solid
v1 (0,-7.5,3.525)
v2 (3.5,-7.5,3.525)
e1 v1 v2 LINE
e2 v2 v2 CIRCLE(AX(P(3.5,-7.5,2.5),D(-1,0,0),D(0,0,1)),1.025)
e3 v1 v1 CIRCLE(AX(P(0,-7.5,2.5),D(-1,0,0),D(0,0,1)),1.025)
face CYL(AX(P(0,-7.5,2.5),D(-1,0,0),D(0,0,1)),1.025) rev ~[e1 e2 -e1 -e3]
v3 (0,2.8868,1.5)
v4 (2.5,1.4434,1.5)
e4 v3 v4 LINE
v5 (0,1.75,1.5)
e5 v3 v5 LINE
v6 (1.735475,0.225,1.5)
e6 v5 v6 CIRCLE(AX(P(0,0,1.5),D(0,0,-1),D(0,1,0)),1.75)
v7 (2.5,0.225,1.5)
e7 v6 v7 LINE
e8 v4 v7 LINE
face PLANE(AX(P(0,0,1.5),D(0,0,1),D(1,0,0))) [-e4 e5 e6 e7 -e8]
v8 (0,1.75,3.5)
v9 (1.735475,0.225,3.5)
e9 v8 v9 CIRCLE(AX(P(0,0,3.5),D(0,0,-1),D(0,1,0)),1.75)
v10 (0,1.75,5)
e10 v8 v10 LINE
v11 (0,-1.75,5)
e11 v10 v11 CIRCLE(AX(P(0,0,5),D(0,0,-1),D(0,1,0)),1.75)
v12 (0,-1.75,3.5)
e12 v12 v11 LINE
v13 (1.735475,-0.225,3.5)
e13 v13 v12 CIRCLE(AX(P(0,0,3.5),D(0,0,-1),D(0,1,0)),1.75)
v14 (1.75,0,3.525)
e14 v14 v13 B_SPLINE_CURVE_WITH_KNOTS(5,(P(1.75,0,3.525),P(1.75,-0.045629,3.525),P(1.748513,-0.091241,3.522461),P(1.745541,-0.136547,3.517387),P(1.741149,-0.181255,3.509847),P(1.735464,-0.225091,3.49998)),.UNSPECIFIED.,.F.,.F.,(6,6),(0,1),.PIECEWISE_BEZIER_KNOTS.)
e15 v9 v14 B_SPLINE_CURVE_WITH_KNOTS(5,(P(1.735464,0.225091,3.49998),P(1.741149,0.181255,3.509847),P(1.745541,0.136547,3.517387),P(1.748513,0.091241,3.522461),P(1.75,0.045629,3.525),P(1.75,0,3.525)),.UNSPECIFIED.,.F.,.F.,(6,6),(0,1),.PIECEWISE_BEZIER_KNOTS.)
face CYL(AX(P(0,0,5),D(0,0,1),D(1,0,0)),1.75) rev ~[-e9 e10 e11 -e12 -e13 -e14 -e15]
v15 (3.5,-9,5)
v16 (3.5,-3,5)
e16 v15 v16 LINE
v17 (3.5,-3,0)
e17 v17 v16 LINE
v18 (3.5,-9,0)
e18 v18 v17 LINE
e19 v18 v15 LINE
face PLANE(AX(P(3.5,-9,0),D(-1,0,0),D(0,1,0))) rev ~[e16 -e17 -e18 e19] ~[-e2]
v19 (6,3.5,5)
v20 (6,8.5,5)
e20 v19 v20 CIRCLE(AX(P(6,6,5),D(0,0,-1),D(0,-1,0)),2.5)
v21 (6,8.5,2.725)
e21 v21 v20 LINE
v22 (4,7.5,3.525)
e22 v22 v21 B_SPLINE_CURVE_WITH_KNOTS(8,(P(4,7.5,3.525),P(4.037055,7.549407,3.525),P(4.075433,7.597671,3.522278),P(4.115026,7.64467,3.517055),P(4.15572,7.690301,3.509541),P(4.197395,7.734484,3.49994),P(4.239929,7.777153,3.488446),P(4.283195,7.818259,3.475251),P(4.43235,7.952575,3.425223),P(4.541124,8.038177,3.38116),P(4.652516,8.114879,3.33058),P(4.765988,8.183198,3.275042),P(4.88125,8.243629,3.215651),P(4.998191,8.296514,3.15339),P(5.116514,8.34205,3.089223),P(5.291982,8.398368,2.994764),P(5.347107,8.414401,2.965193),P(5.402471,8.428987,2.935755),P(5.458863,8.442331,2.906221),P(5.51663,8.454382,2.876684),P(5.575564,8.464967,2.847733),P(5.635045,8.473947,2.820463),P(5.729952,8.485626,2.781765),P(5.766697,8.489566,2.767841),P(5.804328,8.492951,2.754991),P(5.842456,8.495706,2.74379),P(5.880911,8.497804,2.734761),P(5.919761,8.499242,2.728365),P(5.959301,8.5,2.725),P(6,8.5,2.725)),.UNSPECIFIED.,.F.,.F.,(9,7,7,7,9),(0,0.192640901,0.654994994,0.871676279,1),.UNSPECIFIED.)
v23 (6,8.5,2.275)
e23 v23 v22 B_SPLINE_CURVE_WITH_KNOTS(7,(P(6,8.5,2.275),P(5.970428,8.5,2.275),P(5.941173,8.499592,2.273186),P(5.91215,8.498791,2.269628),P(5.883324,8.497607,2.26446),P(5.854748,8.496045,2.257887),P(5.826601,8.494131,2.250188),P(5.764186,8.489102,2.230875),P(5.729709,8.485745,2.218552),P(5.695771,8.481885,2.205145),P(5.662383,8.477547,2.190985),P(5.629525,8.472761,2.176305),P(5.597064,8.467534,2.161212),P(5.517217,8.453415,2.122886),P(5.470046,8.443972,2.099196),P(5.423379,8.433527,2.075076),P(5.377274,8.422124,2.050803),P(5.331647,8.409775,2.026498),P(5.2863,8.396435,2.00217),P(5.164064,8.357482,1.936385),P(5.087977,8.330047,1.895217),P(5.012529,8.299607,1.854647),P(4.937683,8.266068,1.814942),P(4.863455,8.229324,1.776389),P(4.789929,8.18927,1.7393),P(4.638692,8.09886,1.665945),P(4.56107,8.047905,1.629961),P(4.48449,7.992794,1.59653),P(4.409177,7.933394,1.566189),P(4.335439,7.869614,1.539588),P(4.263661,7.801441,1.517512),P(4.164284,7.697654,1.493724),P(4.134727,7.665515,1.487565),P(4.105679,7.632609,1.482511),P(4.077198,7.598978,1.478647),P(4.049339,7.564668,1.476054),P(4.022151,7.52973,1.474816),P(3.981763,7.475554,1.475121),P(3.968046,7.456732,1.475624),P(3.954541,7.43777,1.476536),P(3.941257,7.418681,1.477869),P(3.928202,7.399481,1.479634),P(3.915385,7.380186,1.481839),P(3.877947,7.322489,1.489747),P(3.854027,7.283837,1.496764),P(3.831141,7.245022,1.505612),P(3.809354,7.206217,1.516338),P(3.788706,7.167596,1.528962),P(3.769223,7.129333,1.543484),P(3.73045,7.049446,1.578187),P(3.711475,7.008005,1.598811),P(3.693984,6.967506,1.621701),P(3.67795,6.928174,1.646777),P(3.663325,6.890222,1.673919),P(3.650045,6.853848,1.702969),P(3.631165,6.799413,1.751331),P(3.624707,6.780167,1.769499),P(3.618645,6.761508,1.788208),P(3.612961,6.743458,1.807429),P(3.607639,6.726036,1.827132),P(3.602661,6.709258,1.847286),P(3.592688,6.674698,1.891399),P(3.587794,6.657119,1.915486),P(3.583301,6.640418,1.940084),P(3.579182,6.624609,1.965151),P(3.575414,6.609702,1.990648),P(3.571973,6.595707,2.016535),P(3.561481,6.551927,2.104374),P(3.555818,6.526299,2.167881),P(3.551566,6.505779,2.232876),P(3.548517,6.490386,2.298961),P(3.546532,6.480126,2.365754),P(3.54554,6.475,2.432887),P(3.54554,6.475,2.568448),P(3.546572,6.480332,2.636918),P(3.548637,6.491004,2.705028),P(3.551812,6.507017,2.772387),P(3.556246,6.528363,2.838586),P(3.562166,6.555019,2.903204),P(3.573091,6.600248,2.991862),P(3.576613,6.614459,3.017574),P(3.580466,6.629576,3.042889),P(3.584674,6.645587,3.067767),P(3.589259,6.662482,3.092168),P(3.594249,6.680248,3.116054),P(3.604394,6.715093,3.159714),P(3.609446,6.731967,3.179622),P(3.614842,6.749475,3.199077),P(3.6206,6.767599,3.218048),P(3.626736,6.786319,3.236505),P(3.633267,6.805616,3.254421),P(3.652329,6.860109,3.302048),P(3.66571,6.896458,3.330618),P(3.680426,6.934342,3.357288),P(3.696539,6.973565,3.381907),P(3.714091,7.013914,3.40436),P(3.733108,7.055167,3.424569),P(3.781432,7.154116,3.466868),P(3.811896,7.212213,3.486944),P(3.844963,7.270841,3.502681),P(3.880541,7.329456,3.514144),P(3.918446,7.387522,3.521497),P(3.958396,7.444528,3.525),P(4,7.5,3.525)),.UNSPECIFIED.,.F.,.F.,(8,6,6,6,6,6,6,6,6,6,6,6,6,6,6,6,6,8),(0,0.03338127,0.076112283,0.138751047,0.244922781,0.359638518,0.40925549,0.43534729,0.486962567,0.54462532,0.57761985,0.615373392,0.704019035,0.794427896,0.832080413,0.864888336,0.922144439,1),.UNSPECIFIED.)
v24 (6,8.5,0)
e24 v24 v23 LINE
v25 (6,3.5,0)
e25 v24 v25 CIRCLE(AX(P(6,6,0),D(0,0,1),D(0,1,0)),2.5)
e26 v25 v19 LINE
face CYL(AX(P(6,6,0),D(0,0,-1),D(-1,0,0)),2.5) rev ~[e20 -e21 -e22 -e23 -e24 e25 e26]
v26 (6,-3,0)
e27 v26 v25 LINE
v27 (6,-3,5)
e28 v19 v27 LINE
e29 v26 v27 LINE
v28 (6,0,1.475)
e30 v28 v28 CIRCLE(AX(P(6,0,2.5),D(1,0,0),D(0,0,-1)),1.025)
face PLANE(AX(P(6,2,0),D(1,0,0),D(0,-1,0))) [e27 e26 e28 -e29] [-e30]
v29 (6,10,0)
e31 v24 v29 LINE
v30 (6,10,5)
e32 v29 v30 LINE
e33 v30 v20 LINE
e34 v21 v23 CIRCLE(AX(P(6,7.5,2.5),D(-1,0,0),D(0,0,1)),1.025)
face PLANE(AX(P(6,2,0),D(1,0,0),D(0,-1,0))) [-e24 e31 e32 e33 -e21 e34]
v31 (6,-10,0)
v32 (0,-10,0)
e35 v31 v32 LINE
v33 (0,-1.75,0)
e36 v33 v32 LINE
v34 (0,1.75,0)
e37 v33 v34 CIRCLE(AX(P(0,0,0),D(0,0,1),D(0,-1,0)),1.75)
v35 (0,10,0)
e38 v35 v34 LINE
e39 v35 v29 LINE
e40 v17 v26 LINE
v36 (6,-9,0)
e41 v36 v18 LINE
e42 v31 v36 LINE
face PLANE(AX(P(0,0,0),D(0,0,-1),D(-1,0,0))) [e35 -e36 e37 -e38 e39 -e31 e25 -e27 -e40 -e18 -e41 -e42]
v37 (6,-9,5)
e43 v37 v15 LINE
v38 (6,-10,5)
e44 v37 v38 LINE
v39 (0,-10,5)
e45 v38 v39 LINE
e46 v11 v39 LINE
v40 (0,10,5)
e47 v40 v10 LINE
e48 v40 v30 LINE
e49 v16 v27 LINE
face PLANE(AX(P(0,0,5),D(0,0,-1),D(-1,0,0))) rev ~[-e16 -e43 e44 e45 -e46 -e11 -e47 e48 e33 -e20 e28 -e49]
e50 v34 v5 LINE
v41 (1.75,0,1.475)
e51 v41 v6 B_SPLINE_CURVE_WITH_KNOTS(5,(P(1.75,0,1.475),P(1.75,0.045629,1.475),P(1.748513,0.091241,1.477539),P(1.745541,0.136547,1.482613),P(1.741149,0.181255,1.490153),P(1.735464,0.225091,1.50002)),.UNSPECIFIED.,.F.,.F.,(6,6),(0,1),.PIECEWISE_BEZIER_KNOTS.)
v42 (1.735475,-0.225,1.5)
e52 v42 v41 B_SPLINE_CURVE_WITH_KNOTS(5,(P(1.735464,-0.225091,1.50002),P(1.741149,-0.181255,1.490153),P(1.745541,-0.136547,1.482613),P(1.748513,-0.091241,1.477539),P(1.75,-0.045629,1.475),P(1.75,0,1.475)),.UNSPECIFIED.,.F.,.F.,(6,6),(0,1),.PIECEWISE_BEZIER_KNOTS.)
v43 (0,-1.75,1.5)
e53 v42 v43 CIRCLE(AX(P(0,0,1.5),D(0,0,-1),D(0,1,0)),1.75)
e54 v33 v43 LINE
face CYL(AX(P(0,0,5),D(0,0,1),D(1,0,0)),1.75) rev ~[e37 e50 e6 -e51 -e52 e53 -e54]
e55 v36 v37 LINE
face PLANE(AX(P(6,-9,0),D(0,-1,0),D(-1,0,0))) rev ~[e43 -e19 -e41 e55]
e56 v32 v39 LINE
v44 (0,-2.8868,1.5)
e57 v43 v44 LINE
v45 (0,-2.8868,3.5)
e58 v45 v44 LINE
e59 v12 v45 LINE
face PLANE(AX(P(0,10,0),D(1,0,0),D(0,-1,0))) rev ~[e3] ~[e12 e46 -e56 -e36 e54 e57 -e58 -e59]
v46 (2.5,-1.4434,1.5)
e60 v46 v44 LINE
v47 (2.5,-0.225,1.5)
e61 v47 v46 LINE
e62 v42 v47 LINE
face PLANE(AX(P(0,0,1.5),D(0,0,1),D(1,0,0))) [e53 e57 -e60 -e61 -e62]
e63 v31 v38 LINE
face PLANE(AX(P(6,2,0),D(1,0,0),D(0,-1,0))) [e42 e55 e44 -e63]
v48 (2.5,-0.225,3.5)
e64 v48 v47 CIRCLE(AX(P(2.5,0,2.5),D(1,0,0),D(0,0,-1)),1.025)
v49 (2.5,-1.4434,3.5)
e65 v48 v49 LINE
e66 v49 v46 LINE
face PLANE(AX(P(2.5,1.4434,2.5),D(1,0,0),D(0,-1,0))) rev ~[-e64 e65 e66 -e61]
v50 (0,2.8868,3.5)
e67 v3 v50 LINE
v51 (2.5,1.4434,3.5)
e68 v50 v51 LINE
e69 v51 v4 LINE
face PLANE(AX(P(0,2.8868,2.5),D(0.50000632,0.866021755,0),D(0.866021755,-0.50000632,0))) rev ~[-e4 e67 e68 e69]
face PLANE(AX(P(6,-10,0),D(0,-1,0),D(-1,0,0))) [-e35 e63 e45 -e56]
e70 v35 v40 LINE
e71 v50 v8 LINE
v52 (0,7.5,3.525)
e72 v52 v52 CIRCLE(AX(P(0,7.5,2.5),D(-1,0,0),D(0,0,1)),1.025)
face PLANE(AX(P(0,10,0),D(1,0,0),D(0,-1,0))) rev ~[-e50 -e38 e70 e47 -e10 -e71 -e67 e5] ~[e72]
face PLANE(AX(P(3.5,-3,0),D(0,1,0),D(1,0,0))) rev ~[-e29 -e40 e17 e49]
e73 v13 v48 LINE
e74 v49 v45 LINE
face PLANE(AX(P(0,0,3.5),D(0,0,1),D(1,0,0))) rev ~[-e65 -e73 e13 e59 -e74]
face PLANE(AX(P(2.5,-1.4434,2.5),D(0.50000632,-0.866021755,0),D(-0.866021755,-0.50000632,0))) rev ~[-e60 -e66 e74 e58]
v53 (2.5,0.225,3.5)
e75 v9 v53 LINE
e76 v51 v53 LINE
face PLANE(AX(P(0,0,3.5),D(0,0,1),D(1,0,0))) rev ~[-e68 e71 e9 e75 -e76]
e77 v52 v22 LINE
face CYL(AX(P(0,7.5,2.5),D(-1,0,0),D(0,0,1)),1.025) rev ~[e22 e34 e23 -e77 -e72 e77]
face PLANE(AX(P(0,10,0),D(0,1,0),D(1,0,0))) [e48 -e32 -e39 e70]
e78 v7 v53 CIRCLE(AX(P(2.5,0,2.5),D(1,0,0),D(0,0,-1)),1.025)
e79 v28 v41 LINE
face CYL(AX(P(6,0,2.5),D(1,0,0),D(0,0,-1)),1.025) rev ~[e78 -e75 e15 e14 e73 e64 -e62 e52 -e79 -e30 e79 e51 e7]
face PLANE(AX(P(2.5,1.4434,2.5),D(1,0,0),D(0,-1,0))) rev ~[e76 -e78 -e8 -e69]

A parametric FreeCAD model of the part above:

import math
import FreeCAD as App
import Part
import Sketcher

V = App.Vector
Q = App.Units.Quantity


def add_polygon(sketch, points):
    """Adds a closed chain of lines whose ends are joined by coincident constraints."""
    first, n = sketch.GeometryCount, len(points)
    for a, b in zip(points, points[1:] + points[:1]):
        sketch.addGeometry(Part.LineSegment(App.Vector(*a, 0), App.Vector(*b, 0)), False)
    for i in range(n):
        sketch.addConstraint(Sketcher.Constraint("Coincident", first + i, 2, first + (i + 1) % n, 1))

doc = App.newDocument("Part")
body = doc.addObject("PartDesign::Body", "Body")

# Sketch on XY plane
sketch1 = body.newObject("Sketcher::SketchObject", "Sketch")
sketch1.AttachmentSupport = (doc.getObject("XY_Plane"), [""])
sketch1.MapMode = "FlatFace"
add_polygon(sketch1, [(0, -10), (6, -10), (6, -2), (4, -2), (4, 2), (6, 2), (6, 10), (0, 10)])  # lines 0-7
sketch1.addConstraint(Sketcher.Constraint("Horizontal", 0))
sketch1.addConstraint(Sketcher.Constraint("Vertical", 1))
sketch1.addConstraint(Sketcher.Constraint("Horizontal", 2))
sketch1.addConstraint(Sketcher.Constraint("Vertical", 3))
sketch1.addConstraint(Sketcher.Constraint("Horizontal", 4))
sketch1.addConstraint(Sketcher.Constraint("Vertical", 5))
sketch1.addConstraint(Sketcher.Constraint("Horizontal", 6))
sketch1.addConstraint(Sketcher.Constraint("Vertical", 7))
sketch1.addConstraint(Sketcher.Constraint("Symmetric", 6, 2, 7, 2, -1, 1))
sketch1.addConstraint(Sketcher.Constraint("Symmetric", 1, 2, 4, 2, -1))
sketch1.addConstraint(Sketcher.Constraint("DistanceX", 0, 1, 0, 2, Q("6 mm")))
sketch1.addConstraint(Sketcher.Constraint("DistanceX", 2, 2, 2, 1, Q("2 mm")))
sketch1.addConstraint(Sketcher.Constraint("DistanceY", 3, 1, 3, 2, Q("4 mm")))
sketch1.addConstraint(Sketcher.Constraint("DistanceY", 7, 2, 7, 1, Q("20 mm")))
pad1 = body.newObject("PartDesign::Pad", "Pad")
pad1.Profile = sketch1
pad1.Length = 5

# Sketch on XY plane
sketch2 = body.newObject("Sketcher::SketchObject", "Sketch001")
sketch2.AttachmentSupport = (doc.getObject("XY_Plane"), [""])
sketch2.MapMode = "FlatFace"
sketch2.AttachmentOffset = App.Placement(V(0, 0, 2.5), App.Rotation())
add_polygon(sketch2, [(2.5, 1.4), (0, 2.9), (-2.5, 1.4), (-2.5, -1.4), (0, -2.9), (2.5, -1.4)])  # lines 0-5
sketch2.addConstraint(Sketcher.Constraint("Vertical", 2))
sketch2.addConstraint(Sketcher.Constraint("Vertical", 5))
sketch2.addConstraint(Sketcher.Constraint("Symmetric", 0, 2, 3, 2, -1, 1))
sketch2.addConstraint(Sketcher.Constraint("Symmetric", 1, 2, 4, 2, -1, 1))
sketch2.addConstraint(Sketcher.Constraint("PointOnObject", 0, 2, -2))
sketch2.addConstraint(Sketcher.Constraint("Parallel", 0, 3))
sketch2.addConstraint(Sketcher.Constraint("Horizontal", 2, 2, 4, 2))
sketch2.addConstraint(Sketcher.Constraint("DistanceX", 2, 2, 4, 2, Q("5 mm")))
sketch2.addConstraint(Sketcher.Constraint("Angle", 0, Q("149.9996 deg")))
sketch2.addConstraint(Sketcher.Constraint("DistanceY", 2, 2, 2, 1, Q("2.8868 mm")))
pocket1 = body.newObject("PartDesign::Pocket", "Pocket")
pocket1.Profile = sketch2
pocket1.Length = 2
pocket1.Midplane = True

# Sketch on XY plane
sketch3 = body.newObject("Sketcher::SketchObject", "Sketch002")
sketch3.AttachmentSupport = (doc.getObject("XY_Plane"), [""])
sketch3.MapMode = "FlatFace"
sketch3.AttachmentOffset = App.Placement(V(0, 0, 5), App.Rotation())
sketch3.addGeometry(Part.Circle(V(0, 0, 0), V(0, 0, 1), 1.8), False)
sketch3.addConstraint(Sketcher.Constraint("Coincident", 0, 3, -1, 1))
sketch3.addConstraint(Sketcher.Constraint("Diameter", 0, Q("3.5 mm")))
pocket2 = body.newObject("PartDesign::Pocket", "Pocket001")
pocket2.Profile = sketch3
pocket2.Length = 8

# Sketch on YZ plane
sketch4 = body.newObject("Sketcher::SketchObject", "Sketch003")
sketch4.AttachmentSupport = (doc.getObject("YZ_Plane"), [""])
sketch4.MapMode = "FlatFace"
sketch4.addGeometry(Part.Circle(V(7.5, 2.5, 0), V(0, 0, 1), 1), False)
sketch4.addGeometry(Part.Circle(V(-7.5, 2.5, 0), V(0, 0, 1), 1), False)
sketch4.addConstraint(Sketcher.Constraint("Equal", 0, 1))
sketch4.addConstraint(Sketcher.Constraint("Symmetric", 0, 3, 1, 3, -2))
sketch4.addConstraint(Sketcher.Constraint("Diameter", 0, Q("2.05 mm")))
sketch4.addConstraint(Sketcher.Constraint("DistanceY", -1, 1, 0, 3, Q("2.5 mm")))
sketch4.addConstraint(Sketcher.Constraint("DistanceX", 1, 3, 0, 3, Q("15 mm")))
pocket3 = body.newObject("PartDesign::Pocket", "Pocket002")
pocket3.Profile = sketch4
pocket3.Length = 25
pocket3.Reversed = True

# Sketch on XY plane
sketch5 = body.newObject("Sketcher::SketchObject", "Sketch004")
sketch5.AttachmentSupport = (doc.getObject("XY_Plane"), [""])
sketch5.MapMode = "FlatFace"
add_polygon(sketch5, [(6, -2), (4, -2), (4, 2), (6, 2)])  # lines 0-3
sketch5.addConstraint(Sketcher.Constraint("Horizontal", 0))
sketch5.addConstraint(Sketcher.Constraint("Vertical", 1))
sketch5.addConstraint(Sketcher.Constraint("Horizontal", 2))
sketch5.addConstraint(Sketcher.Constraint("Vertical", 3))
sketch5.addConstraint(Sketcher.Constraint("DistanceX", 0, 2, 0, 1, Q("2 mm")))
sketch5.addConstraint(Sketcher.Constraint("DistanceY", 1, 1, 1, 2, Q("4 mm")))
sketch5.addConstraint(Sketcher.Constraint("DistanceX", -1, 1, 0, 2, Q("4 mm")))
sketch5.addConstraint(Sketcher.Constraint("DistanceY", 0, 2, -1, 1, Q("2 mm")))
pad2 = body.newObject("PartDesign::Pad", "Pad001")
pad2.Profile = sketch5
pad2.Length = 5

# Sketch on XY plane
sketch6 = body.newObject("Sketcher::SketchObject", "Sketch005")
sketch6.AttachmentSupport = (doc.getObject("XY_Plane"), [""])
sketch6.MapMode = "FlatFace"
sketch6.addGeometry(Part.LineSegment(V(6, 8.5, 0), V(6, 3.5, 0)), False)  # 0
sketch6.addGeometry(Part.ArcOfCircle(Part.Circle(V(6, 6, 0), V(0, 0, 1), 2.5), math.radians(90), math.radians(270)), False)  # 1
add_polygon(sketch6, [(6, -3), (6, -9), (3.5, -9), (3.5, -3)])  # lines 2-5
sketch6.addConstraint(Sketcher.Constraint("Coincident", 0, 1, 1, 1))
sketch6.addConstraint(Sketcher.Constraint("Coincident", 1, 2, 0, 2))
sketch6.addConstraint(Sketcher.Constraint("Vertical", 0))
sketch6.addConstraint(Sketcher.Constraint("Vertical", 2))
sketch6.addConstraint(Sketcher.Constraint("Horizontal", 3))
sketch6.addConstraint(Sketcher.Constraint("Vertical", 4))
sketch6.addConstraint(Sketcher.Constraint("Horizontal", 5))
sketch6.addConstraint(Sketcher.Constraint("Vertical", 1, 3, 0, 1))
sketch6.addConstraint(Sketcher.Constraint("Vertical", 1, 2, 2, 2))
sketch6.addConstraint(Sketcher.Constraint("Radius", 1, Q("2.5 mm")))
sketch6.addConstraint(Sketcher.Constraint("DistanceY", 2, 2, 2, 1, Q("6 mm")))
sketch6.addConstraint(Sketcher.Constraint("DistanceX", 3, 2, 3, 1, Q("2.5 mm")))
sketch6.addConstraint(Sketcher.Constraint("DistanceX", -1, 1, 1, 3, Q("6 mm")))
sketch6.addConstraint(Sketcher.Constraint("DistanceY", -1, 1, 1, 3, Q("6 mm")))
sketch6.addConstraint(Sketcher.Constraint("DistanceY", 2, 2, -1, 1, Q("9 mm")))
pocket4 = body.newObject("PartDesign::Pocket", "Pocket003")
pocket4.Profile = sketch6
pocket4.Length = 5
pocket4.Reversed = True

# Sketch on YZ plane
sketch7 = body.newObject("Sketcher::SketchObject", "Sketch006")
sketch7.AttachmentSupport = (doc.getObject("YZ_Plane"), [""])
sketch7.MapMode = "FlatFace"
sketch7.AttachmentOffset = App.Placement(V(0, 0, 6), App.Rotation())
sketch7.addGeometry(Part.Circle(V(0, 2.5, 0), V(0, 0, 1), 1), False)
sketch7.addConstraint(Sketcher.Constraint("PointOnObject", 0, 3, -2))
sketch7.addConstraint(Sketcher.Constraint("Diameter", 0, Q("2.05 mm")))
sketch7.addConstraint(Sketcher.Constraint("DistanceY", -1, 1, 0, 3, Q("2.5 mm")))
pocket5 = body.newObject("PartDesign::Pocket", "Pocket004")
pocket5.Profile = sketch7
pocket5.Length = 12

doc.recompute()
